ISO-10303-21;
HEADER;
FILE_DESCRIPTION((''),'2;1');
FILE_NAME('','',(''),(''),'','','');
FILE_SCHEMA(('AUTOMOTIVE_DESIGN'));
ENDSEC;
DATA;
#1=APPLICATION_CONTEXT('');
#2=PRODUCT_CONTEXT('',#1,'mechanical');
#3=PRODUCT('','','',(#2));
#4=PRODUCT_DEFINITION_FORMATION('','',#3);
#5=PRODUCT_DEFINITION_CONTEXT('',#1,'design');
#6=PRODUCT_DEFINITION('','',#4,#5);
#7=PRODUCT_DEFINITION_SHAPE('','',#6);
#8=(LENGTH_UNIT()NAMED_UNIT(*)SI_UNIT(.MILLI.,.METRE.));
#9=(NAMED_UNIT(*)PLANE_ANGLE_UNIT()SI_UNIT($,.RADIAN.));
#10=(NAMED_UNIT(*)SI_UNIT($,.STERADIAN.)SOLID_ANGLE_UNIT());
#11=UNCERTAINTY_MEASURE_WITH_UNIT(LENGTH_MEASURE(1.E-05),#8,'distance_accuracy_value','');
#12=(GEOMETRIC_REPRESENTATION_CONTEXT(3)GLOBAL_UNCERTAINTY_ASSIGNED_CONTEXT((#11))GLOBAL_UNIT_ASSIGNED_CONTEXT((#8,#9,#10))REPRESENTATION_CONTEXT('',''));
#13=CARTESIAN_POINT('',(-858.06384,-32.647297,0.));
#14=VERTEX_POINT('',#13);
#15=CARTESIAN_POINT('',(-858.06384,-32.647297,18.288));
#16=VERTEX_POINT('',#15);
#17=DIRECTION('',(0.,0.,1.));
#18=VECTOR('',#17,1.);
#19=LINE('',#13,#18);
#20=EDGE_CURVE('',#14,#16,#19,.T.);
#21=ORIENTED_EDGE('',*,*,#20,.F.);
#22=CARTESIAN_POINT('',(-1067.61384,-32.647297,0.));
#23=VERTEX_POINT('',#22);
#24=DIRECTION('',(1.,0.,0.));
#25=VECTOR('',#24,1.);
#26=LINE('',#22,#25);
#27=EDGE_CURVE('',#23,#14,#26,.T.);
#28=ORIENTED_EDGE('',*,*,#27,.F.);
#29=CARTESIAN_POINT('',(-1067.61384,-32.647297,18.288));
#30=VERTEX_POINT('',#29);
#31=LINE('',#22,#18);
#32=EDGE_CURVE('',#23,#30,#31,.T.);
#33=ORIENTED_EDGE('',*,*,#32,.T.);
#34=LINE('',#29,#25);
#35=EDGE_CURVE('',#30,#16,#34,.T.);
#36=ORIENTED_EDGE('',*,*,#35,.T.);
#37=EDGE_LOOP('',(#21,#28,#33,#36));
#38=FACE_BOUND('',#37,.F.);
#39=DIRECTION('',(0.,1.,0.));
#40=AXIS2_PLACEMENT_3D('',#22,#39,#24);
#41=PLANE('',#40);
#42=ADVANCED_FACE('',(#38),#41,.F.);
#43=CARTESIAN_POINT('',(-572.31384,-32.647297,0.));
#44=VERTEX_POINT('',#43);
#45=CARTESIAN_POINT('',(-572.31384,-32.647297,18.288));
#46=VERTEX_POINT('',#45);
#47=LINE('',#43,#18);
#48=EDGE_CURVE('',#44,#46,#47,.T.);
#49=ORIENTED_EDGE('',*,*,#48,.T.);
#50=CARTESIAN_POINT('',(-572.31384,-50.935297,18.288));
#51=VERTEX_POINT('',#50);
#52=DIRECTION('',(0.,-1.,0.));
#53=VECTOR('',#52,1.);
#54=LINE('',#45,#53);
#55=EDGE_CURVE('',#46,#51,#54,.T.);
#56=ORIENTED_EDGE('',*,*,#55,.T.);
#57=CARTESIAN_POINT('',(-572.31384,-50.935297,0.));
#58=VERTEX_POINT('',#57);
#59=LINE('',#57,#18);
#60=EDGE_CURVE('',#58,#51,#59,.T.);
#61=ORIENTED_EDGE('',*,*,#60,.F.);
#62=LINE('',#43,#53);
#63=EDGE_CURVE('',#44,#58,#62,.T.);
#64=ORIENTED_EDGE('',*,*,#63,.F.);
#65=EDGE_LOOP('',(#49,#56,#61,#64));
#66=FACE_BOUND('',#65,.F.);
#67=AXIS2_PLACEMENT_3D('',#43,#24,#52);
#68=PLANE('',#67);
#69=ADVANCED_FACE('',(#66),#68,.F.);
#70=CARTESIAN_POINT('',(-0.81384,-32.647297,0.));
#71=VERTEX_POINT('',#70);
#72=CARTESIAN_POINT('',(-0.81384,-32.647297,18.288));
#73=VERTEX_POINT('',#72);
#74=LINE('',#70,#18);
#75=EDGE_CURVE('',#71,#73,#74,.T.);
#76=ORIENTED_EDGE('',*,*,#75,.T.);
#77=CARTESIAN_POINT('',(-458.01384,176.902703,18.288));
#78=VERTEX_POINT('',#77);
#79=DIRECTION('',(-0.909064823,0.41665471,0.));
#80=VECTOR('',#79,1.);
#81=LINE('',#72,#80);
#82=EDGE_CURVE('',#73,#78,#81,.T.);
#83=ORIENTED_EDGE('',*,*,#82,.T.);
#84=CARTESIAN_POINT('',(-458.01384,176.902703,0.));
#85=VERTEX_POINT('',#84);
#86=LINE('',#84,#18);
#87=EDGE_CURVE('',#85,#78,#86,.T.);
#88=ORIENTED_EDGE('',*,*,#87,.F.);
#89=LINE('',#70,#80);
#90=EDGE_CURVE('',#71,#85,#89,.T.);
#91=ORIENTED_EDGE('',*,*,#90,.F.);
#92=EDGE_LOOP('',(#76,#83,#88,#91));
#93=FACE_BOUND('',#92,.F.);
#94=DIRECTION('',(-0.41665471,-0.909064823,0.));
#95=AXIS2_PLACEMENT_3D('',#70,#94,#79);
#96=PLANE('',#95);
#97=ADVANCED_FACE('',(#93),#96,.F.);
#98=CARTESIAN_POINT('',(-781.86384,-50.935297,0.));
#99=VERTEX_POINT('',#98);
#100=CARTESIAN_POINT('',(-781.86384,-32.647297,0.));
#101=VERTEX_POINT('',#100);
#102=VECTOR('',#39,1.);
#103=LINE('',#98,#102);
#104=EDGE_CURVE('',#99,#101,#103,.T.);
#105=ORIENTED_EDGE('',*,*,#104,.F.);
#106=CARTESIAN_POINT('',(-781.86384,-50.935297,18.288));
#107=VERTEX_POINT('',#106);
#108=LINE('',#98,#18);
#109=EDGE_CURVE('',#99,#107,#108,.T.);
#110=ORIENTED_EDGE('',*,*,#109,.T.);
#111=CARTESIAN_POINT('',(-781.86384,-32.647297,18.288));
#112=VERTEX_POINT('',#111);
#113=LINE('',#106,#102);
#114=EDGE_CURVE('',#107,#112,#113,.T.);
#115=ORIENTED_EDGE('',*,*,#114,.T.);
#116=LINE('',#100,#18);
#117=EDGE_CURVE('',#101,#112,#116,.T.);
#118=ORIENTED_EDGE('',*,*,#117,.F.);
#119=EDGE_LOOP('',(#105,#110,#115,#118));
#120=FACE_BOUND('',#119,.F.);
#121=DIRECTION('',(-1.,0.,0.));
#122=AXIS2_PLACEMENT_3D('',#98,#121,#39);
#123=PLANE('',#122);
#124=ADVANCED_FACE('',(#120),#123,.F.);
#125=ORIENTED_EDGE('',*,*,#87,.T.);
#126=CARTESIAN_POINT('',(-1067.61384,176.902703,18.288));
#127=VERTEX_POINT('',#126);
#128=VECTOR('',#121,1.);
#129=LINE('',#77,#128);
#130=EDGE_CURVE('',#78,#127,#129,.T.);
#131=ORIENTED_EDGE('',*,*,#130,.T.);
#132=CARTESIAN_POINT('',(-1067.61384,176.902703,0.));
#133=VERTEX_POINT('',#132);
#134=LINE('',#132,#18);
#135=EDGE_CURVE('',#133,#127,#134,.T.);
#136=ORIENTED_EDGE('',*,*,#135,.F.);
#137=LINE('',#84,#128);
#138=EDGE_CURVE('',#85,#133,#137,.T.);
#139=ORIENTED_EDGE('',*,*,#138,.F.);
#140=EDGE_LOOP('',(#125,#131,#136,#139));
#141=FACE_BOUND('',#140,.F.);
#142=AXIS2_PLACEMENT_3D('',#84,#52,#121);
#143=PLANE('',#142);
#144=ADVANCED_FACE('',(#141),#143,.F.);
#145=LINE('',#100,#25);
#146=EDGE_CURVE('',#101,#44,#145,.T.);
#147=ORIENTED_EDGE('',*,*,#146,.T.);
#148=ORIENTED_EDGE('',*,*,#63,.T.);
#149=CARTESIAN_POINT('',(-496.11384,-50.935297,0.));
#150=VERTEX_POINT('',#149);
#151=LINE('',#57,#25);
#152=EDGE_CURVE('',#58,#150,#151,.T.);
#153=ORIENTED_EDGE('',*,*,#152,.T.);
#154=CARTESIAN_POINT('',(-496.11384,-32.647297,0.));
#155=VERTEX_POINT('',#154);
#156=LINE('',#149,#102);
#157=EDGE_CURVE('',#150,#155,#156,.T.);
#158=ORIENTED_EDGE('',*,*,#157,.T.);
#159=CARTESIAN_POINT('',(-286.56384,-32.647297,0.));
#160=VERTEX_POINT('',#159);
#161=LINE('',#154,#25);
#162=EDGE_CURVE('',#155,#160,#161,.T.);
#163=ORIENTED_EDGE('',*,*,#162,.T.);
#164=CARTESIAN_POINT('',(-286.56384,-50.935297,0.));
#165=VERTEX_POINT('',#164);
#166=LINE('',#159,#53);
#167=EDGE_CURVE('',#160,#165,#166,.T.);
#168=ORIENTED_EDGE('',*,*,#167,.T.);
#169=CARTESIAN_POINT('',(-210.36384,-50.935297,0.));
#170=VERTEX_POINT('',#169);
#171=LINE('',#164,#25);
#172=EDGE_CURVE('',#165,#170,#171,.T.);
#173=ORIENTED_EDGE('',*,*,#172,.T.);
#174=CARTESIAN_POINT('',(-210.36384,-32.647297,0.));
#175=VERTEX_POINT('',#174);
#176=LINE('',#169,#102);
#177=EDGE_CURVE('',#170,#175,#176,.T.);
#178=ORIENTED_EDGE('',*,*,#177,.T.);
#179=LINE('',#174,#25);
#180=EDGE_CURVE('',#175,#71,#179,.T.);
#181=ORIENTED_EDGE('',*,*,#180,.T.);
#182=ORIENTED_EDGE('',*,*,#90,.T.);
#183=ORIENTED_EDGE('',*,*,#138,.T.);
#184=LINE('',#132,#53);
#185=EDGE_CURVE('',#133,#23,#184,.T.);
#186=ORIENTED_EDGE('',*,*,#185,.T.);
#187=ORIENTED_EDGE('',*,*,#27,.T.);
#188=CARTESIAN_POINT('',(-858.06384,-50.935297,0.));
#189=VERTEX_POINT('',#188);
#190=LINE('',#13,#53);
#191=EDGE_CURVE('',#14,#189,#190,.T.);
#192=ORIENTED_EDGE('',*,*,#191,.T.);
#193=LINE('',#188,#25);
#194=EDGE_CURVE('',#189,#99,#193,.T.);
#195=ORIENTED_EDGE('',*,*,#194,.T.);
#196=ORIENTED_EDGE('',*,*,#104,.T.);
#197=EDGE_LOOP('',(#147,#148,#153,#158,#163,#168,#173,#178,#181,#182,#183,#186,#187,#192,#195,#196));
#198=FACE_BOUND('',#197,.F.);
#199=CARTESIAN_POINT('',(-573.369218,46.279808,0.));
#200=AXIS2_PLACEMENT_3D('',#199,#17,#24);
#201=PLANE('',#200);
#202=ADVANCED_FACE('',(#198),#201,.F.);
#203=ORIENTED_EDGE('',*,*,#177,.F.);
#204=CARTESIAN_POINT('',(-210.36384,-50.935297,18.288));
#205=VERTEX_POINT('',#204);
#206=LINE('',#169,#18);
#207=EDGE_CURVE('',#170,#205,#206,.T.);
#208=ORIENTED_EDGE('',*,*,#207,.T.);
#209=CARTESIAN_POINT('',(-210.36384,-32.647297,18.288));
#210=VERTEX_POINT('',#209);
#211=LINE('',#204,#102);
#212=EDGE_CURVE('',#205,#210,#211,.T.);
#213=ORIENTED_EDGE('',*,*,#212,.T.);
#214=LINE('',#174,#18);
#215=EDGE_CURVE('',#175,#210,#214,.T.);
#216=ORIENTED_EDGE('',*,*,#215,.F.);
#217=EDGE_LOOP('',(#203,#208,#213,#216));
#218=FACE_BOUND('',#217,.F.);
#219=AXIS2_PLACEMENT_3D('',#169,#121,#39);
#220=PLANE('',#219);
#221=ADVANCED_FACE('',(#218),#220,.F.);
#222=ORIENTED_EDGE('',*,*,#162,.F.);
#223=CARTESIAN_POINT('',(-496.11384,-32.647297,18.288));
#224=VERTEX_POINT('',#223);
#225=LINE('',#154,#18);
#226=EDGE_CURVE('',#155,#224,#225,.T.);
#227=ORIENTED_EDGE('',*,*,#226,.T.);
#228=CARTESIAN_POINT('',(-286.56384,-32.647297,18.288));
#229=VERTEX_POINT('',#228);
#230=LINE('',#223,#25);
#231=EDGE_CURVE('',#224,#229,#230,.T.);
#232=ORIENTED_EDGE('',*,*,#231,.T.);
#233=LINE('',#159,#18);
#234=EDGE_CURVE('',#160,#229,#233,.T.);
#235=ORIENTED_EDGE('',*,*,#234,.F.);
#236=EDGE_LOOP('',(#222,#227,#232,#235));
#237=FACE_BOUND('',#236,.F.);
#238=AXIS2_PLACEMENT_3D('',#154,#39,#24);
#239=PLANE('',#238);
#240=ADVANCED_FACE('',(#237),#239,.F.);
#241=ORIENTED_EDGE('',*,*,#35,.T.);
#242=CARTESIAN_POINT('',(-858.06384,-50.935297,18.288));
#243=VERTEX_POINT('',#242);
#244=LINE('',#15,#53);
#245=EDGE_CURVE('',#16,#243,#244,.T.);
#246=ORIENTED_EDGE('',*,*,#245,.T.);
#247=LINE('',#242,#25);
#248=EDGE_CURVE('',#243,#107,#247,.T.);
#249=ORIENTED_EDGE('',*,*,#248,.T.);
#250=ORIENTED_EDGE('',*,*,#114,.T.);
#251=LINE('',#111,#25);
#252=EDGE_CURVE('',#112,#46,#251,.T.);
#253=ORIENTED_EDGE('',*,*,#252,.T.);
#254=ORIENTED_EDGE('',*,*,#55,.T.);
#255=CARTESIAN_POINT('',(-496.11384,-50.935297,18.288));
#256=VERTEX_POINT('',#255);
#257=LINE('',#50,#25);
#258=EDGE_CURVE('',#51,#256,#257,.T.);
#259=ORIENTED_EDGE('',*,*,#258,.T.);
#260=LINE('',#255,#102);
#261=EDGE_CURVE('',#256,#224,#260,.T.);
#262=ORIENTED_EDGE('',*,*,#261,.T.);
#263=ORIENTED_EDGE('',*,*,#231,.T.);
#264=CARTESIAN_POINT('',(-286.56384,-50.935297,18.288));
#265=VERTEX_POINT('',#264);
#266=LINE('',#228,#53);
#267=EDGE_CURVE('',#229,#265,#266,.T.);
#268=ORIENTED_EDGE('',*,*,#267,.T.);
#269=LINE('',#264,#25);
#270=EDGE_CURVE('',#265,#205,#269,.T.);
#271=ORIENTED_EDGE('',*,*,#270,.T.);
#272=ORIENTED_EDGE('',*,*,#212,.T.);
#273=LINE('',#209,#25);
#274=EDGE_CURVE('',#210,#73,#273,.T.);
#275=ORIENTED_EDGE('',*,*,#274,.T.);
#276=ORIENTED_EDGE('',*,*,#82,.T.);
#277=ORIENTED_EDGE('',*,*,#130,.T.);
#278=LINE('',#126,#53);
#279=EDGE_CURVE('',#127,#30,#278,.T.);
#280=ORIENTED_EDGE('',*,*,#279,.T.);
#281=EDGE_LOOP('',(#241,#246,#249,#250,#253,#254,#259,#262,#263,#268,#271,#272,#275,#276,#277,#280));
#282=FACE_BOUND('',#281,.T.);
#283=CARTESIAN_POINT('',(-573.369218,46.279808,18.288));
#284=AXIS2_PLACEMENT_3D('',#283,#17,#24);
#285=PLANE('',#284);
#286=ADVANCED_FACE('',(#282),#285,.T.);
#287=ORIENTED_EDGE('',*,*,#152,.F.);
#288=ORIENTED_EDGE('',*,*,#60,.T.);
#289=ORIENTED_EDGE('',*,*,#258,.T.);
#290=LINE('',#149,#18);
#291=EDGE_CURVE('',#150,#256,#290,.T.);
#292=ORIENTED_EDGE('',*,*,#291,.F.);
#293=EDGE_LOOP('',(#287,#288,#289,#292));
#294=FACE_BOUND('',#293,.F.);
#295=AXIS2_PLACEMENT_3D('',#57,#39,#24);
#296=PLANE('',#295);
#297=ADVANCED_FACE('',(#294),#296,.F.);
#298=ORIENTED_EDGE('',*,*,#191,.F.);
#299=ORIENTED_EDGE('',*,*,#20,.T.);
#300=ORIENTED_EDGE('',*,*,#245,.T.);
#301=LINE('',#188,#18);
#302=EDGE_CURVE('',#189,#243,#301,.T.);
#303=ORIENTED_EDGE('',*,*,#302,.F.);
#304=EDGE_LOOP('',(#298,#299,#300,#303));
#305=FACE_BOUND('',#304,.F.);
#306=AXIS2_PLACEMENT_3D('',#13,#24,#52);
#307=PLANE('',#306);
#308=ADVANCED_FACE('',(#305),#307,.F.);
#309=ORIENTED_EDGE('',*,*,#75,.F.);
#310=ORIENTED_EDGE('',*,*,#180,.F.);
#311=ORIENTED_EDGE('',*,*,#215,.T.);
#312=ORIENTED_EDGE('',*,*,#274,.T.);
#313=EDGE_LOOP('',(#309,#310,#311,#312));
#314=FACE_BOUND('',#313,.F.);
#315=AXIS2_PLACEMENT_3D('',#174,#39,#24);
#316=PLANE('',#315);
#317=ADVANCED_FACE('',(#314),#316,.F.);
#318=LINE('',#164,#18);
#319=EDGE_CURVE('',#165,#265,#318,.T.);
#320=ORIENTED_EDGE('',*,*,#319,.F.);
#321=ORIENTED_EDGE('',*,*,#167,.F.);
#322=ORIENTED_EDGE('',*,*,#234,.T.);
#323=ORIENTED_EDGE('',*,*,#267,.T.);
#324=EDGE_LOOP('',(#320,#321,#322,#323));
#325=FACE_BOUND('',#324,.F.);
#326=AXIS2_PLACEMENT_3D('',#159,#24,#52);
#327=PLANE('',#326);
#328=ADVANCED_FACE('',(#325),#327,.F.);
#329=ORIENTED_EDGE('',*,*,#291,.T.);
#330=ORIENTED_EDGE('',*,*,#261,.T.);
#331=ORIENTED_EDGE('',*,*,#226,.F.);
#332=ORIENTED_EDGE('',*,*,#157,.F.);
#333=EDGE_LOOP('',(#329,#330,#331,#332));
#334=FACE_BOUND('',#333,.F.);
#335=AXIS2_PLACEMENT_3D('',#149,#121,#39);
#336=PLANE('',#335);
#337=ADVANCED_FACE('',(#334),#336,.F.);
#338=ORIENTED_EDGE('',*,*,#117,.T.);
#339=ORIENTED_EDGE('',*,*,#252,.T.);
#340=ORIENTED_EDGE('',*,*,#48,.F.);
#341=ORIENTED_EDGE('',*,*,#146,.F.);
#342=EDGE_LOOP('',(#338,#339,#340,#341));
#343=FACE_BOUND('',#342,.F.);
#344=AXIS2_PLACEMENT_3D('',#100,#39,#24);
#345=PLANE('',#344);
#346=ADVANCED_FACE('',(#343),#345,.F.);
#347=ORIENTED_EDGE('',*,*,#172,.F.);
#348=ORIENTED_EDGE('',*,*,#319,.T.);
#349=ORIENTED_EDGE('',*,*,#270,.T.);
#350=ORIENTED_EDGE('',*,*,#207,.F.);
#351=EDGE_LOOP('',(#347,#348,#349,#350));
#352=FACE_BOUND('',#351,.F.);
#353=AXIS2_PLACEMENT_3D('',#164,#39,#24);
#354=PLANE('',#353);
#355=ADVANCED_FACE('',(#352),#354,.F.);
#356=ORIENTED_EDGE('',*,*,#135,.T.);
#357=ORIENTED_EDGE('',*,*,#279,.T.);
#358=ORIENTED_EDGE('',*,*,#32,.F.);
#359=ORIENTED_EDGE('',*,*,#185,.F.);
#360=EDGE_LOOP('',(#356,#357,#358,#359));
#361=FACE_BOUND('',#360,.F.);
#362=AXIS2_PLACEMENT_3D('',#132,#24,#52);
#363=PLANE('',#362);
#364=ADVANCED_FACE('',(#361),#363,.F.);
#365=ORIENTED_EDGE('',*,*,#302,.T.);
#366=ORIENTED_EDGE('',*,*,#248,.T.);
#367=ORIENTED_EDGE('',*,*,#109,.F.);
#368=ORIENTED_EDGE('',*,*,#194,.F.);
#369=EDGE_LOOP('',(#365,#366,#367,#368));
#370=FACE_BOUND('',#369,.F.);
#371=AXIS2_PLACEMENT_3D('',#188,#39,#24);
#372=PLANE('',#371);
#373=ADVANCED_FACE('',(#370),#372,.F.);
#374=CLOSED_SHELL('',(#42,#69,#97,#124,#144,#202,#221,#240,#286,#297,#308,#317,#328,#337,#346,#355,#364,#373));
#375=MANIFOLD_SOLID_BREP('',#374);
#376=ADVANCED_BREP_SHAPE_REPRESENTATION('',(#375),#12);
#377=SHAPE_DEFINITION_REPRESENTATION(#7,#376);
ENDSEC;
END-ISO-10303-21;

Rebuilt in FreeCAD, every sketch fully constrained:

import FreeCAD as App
import Part
import Sketcher
Q = App.Units.Quantity

doc = App.newDocument("Part")
body = doc.addObject("PartDesign::Body", "Body")

sketch1 = body.newObject("Sketcher::SketchObject", "Sketch")
sketch1.AttachmentSupport = (doc.getObject("XY_Plane"), [""])
sketch1.MapMode = "FlatFace"
sketch1.addGeometry([
    Part.LineSegment(App.Vector(-1068, 177, 0), App.Vector(-1068, -33, 0)),
    Part.LineSegment(App.Vector(-1068, -33, 0), App.Vector(-858, -33, 0)),
    Part.LineSegment(App.Vector(-858, -33, 0), App.Vector(-858, -51, 0)),
    Part.LineSegment(App.Vector(-858, -51, 0), App.Vector(-782, -51, 0)),
    Part.LineSegment(App.Vector(-782, -51, 0), App.Vector(-782, -33, 0)),
    Part.LineSegment(App.Vector(-782, -33, 0), App.Vector(-572, -33, 0)),
    Part.LineSegment(App.Vector(-572, -33, 0), App.Vector(-572, -51, 0)),
    Part.LineSegment(App.Vector(-572, -51, 0), App.Vector(-496, -51, 0)),
    Part.LineSegment(App.Vector(-496, -51, 0), App.Vector(-496, -33, 0)),
    Part.LineSegment(App.Vector(-496, -33, 0), App.Vector(-287, -33, 0)),
    Part.LineSegment(App.Vector(-287, -33, 0), App.Vector(-287, -51, 0)),
    Part.LineSegment(App.Vector(-287, -51, 0), App.Vector(-210, -51, 0)),
    Part.LineSegment(App.Vector(-210, -51, 0), App.Vector(-210, -33, 0)),
    Part.LineSegment(App.Vector(-210, -33, 0), App.Vector(-1, -33, 0)),
    Part.LineSegment(App.Vector(-1, -33, 0), App.Vector(-458, 177, 0)),
    Part.LineSegment(App.Vector(-458, 177, 0), App.Vector(-1068, 177, 0)),
], False)
sketch1.addConstraint([
    Sketcher.Constraint("Coincident", 0, 2, 1, 1),
    Sketcher.Constraint("Coincident", 1, 2, 2, 1),
    Sketcher.Constraint("Coincident", 2, 2, 3, 1),
    Sketcher.Constraint("Coincident", 3, 2, 4, 1),
    Sketcher.Constraint("Coincident", 4, 2, 5, 1),
    Sketcher.Constraint("Coincident", 5, 2, 6, 1),
    Sketcher.Constraint("Coincident", 6, 2, 7, 1),
    Sketcher.Constraint("Coincident", 7, 2, 8, 1),
    Sketcher.Constraint("Coincident", 8, 2, 9, 1),
    Sketcher.Constraint("Coincident", 9, 2, 10, 1),
    Sketcher.Constraint("Coincident", 10, 2, 11, 1),
    Sketcher.Constraint("Coincident", 11, 2, 12, 1),
    Sketcher.Constraint("Coincident", 12, 2, 13, 1),
    Sketcher.Constraint("Coincident", 13, 2, 14, 1),
    Sketcher.Constraint("Coincident", 14, 2, 15, 1),
    Sketcher.Constraint("Coincident", 15, 2, 0, 1),
    Sketcher.Constraint("Vertical", 0),
    Sketcher.Constraint("Horizontal", 1),
    Sketcher.Constraint("Vertical", 2),
    Sketcher.Constraint("Horizontal", 3),
    Sketcher.Constraint("Vertical", 4),
    Sketcher.Constraint("Horizontal", 5),
    Sketcher.Constraint("Vertical", 6),
    Sketcher.Constraint("Horizontal", 7),
    Sketcher.Constraint("Vertical", 8),
    Sketcher.Constraint("Horizontal", 9),
    Sketcher.Constraint("Vertical", 10),
    Sketcher.Constraint("Horizontal", 11),
    Sketcher.Constraint("Vertical", 12),
    Sketcher.Constraint("Horizontal", 13),
    Sketcher.Constraint("Horizontal", 15),
    Sketcher.Constraint("Horizontal", 1, 2, 4, 2),
    Sketcher.Constraint("Horizontal", 3, 2, 6, 2),
    Sketcher.Constraint("Horizontal", 5, 2, 8, 2),
    Sketcher.Constraint("Horizontal", 7, 2, 10, 2),
    Sketcher.Constraint("Horizontal", 9, 2, 12, 2),
    Sketcher.Constraint("Equal", 1, 5),
    Sketcher.Constraint("Equal", 3, 7),
    Sketcher.Constraint("Equal", 5, 9),
    Sketcher.Constraint("Equal", 7, 11),
    Sketcher.Constraint("Equal", 9, 13),
    Sketcher.Constraint("Equal", 13, 0),
    Sketcher.Constraint("DistanceX", 3, 1, 3, 2, Q("3 in")),
    Sketcher.Constraint("DistanceX", 15, 2, 15, 1, Q("24 in")),
    Sketcher.Constraint("DistanceX", 1, 1, 1, 2, Q("8.25 in")),
    Sketcher.Constraint("DistanceY", 2, 2, 2, 1, Q("0.72 in")),
    Sketcher.Constraint("DistanceX", 0, 2, -1, 1, 1067.61384),
    Sketcher.Constraint("DistanceY", 0, 2, -1, 1, 32.647297),
])
pad1 = body.newObject("PartDesign::Pad", "Pad")
pad1.Profile = sketch1
pad1.Length = Q("0.72 in")

doc.recompute()
